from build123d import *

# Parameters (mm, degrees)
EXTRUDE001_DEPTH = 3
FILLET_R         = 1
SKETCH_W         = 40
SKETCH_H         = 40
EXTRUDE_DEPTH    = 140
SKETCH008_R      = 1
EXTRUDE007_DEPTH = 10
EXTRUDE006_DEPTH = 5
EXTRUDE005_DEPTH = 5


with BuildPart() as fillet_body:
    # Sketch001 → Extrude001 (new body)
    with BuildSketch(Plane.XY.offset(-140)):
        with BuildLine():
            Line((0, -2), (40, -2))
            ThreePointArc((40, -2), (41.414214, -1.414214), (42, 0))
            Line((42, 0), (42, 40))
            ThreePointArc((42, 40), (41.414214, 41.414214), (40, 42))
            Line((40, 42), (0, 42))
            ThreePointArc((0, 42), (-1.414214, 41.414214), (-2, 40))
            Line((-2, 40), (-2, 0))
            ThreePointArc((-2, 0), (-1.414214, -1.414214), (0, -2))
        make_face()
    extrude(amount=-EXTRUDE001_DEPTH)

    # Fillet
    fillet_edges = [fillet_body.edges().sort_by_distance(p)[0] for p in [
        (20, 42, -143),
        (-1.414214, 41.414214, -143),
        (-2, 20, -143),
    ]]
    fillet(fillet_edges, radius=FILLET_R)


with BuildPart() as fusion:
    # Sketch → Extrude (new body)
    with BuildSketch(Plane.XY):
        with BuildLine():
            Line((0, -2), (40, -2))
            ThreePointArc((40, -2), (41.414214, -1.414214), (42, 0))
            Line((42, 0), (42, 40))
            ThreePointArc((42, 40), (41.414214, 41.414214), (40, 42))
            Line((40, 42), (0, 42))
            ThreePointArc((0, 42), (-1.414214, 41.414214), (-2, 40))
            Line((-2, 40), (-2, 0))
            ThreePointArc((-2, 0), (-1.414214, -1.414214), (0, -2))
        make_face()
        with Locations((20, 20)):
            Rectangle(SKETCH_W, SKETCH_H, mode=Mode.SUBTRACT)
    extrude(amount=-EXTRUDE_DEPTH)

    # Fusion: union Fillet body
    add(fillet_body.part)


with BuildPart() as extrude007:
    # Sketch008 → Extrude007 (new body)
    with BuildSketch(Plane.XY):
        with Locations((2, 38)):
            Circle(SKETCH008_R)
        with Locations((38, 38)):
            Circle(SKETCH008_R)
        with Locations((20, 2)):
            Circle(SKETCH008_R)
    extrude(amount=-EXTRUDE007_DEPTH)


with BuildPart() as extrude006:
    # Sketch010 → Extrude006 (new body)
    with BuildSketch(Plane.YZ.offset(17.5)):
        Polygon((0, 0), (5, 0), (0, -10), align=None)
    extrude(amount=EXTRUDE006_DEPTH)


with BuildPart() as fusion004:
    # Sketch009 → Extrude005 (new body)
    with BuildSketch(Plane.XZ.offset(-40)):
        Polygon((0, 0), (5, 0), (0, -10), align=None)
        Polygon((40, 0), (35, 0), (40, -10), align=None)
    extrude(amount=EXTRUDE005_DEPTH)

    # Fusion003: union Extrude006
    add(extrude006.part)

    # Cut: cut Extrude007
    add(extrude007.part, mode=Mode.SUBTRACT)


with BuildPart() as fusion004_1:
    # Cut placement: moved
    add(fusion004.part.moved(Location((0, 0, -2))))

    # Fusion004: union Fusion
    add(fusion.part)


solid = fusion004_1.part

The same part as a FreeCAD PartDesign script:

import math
import FreeCAD as App
import Part
import Sketcher
from FreeCAD import Vector


def edges_at(feature, points):
    """Names of the edges that pass closest to the given points."""
    edges = feature.Shape.Edges
    near = lambda p: min(range(len(edges)), key=lambda i: edges[i].distToShape(Part.Vertex(*p))[0])
    return sorted({f"Edge{near(p) + 1}" for p in points})


def add_polygon(sketch, points):
    """Adds a closed chain of lines whose ends are joined by coincident constraints."""
    first, n = sketch.GeometryCount, len(points)
    for a, b in zip(points, points[1:] + points[:1]):
        sketch.addGeometry(Part.LineSegment(App.Vector(*a, 0), App.Vector(*b, 0)), False)
    for i in range(n):
        sketch.addConstraint(Sketcher.Constraint("Coincident", first + i, 2, first + (i + 1) % n, 1))

doc = App.newDocument("Part")
body = doc.addObject("PartDesign::Body", "Body")

sketch1 = doc.addObject("Sketcher::SketchObject", "Sketch")
body.addObject(sketch1)
sketch1.AttachmentSupport = (doc.XY_Plane, [""])
sketch1.MapMode = "FlatFace"
sketch1.AttachmentOffset = App.Placement(Vector(0, 0, -140), App.Rotation())
sketch1.addGeometry([
    Part.LineSegment(Vector(0, -2, 0), Vector(40, -2, 0)),
    Part.ArcOfCircle(Part.Circle(Vector(40, 0, 0), Vector(0, 0, 1), 2), math.radians(-90), math.radians(0)),
    Part.LineSegment(Vector(42, 0, 0), Vector(42, 40, 0)),
    Part.ArcOfCircle(Part.Circle(Vector(40, 40, 0), Vector(0, 0, 1), 2), math.radians(0), math.radians(90)),
    Part.LineSegment(Vector(40, 42, 0), Vector(0, 42, 0)),
    Part.ArcOfCircle(Part.Circle(Vector(0, 40, 0), Vector(0, 0, 1), 2), math.radians(90), math.radians(180)),
    Part.LineSegment(Vector(-2, 40, 0), Vector(-2, 0, 0)),
    Part.ArcOfCircle(Part.Circle(Vector(0, 0, 0), Vector(0, 0, 1), 2), math.radians(180), math.radians(270)),
], False)
sketch1.addConstraint([
    Sketcher.Constraint("Tangent", 0, 2, 1, 1),
    Sketcher.Constraint("Tangent", 1, 2, 2, 1),
    Sketcher.Constraint("Tangent", 2, 2, 3, 1),
    Sketcher.Constraint("Tangent", 3, 2, 4, 1),
    Sketcher.Constraint("Tangent", 4, 2, 5, 1),
    Sketcher.Constraint("Tangent", 5, 2, 6, 1),
    Sketcher.Constraint("Tangent", 6, 2, 7, 1),
    Sketcher.Constraint("Tangent", 7, 2, 0, 1),
    Sketcher.Constraint("Horizontal", 0),
    Sketcher.Constraint("Vertical", 2),
    Sketcher.Constraint("Horizontal", 4),
    Sketcher.Constraint("Vertical", 6),
    Sketcher.Constraint("Coincident", 7, 3, -1, 1),
    Sketcher.Constraint("Equal", 1, 3),
    Sketcher.Constraint("Equal", 3, 5),
    Sketcher.Constraint("Equal", 5, 7),
    Sketcher.Constraint("Equal", 4, 2),
    Sketcher.Constraint("Radius", 1, 1.999999),
    Sketcher.Constraint("DistanceX", 0, 1, 0, 2, 40.0),
])
pad1 = doc.addObject("PartDesign::Pad", "Pad")
body.addObject(pad1)
pad1.Profile = sketch1
pad1.Length = 3
pad1.Reversed = True
doc.recompute()

fillet = doc.addObject("PartDesign::Fillet", "Fillet")
body.addObject(fillet)
fillet.Base = (pad1, edges_at(pad1, [(20, 42, -143), (-1.414, 41.414, -143), (-2, 20, -143)]))
fillet.Radius = 1
body2 = doc.addObject("PartDesign::Body", "Body001")

sketch2 = doc.addObject("Sketcher::SketchObject", "Sketch001")
body2.addObject(sketch2)
sketch2.AttachmentSupport = (doc.getObject("XY_Plane001"), [""])
sketch2.MapMode = "FlatFace"
sketch2.addGeometry(Part.LineSegment(Vector(0, -2, 0), Vector(40, -2, 0)), False)
sketch2.addGeometry(Part.ArcOfCircle(Part.Circle(Vector(40, 0, 0), Vector(0, 0, 1), 2), math.radians(-90), math.radians(0)), False)
sketch2.addGeometry(Part.LineSegment(Vector(42, 0, 0), Vector(42, 40, 0)), False)
sketch2.addGeometry(Part.ArcOfCircle(Part.Circle(Vector(40, 40, 0), Vector(0, 0, 1), 2), math.radians(0), math.radians(90)), False)
sketch2.addGeometry(Part.LineSegment(Vector(40, 42, 0), Vector(0, 42, 0)), False)
sketch2.addGeometry(Part.ArcOfCircle(Part.Circle(Vector(0, 40, 0), Vector(0, 0, 1), 2), math.radians(90), math.radians(180)), False)
sketch2.addGeometry(Part.LineSegment(Vector(-2, 40, 0), Vector(-2, 0, 0)), False)
sketch2.addGeometry(Part.ArcOfCircle(Part.Circle(Vector(0, 0, 0), Vector(0, 0, 1), 2), math.radians(180), math.radians(270)), False)
add_polygon(sketch2, [(40, 0), (0, 0), (0, 40), (40, 40)])
sketch2.addConstraint([
    Sketcher.Constraint("Tangent", 0, 2, 1, 1),
    Sketcher.Constraint("Tangent", 1, 2, 2, 1),
    Sketcher.Constraint("Tangent", 2, 2, 3, 1),
    Sketcher.Constraint("Tangent", 3, 2, 4, 1),
    Sketcher.Constraint("Tangent", 4, 2, 5, 1),
    Sketcher.Constraint("Tangent", 5, 2, 6, 1),
    Sketcher.Constraint("Tangent", 6, 2, 7, 1),
    Sketcher.Constraint("Tangent", 7, 2, 0, 1),
    Sketcher.Constraint("Horizontal", 0),
    Sketcher.Constraint("Vertical", 2),
    Sketcher.Constraint("Horizontal", 4),
    Sketcher.Constraint("Vertical", 6),
    Sketcher.Constraint("Horizontal", 8),
    Sketcher.Constraint("Vertical", 9),
    Sketcher.Constraint("Horizontal", 10),
    Sketcher.Constraint("Vertical", 11),
    Sketcher.Constraint("Coincident", 7, 3, -1, 1),
    Sketcher.Constraint("Coincident", 8, 2, -1, 1),
    Sketcher.Constraint("Coincident", 9, 2, 5, 3),
    Sketcher.Constraint("Coincident", 10, 2, 3, 3),
    Sketcher.Constraint("Equal", 1, 3),
    Sketcher.Constraint("Equal", 10, 2),
    Sketcher.Constraint("Radius", 1, 1.999999),
    Sketcher.Constraint("DistanceX", 0, 1, 0, 2, 40.0),
])
pad2 = doc.addObject("PartDesign::Pad", "Pad001")
body2.addObject(pad2)
pad2.Profile = sketch2
pad2.Length = 140
pad2.Reversed = True
doc.recompute()

boolean = doc.addObject("PartDesign::Boolean", "Boolean")
body2.addObject(boolean)
boolean.Type = "Fuse"
boolean.addObjects([body])
body3 = doc.addObject("PartDesign::Body", "Body002")
body3.AllowCompound = True

sketch3 = doc.addObject("Sketcher::SketchObject", "Sketch002")
body3.addObject(sketch3)
sketch3.AttachmentSupport = (doc.getObject("XY_Plane002"), [""])
sketch3.MapMode = "FlatFace"
sketch3.addGeometry([
    Part.Circle(Vector(2, 38, 0), Vector(0, 0, 1), 1),
    Part.Circle(Vector(38, 38, 0), Vector(0, 0, 1), 1),
    Part.Circle(Vector(20, 2, 0), Vector(0, 0, 1), 1),
], False)
sketch3.addConstraint([
    Sketcher.Constraint("Equal", 0, 1),
    Sketcher.Constraint("Equal", 1, 2),
    Sketcher.Constraint("Horizontal", 0, 3, 1, 3),
    Sketcher.Constraint("Diameter", 0, 2.0),
    Sketcher.Constraint("DistanceX", -1, 1, 0, 3, 2.0),
    Sketcher.Constraint("DistanceY", -1, 1, 0, 3, 38.0),
    Sketcher.Constraint("DistanceX", -1, 1, 1, 3, 38.0),
    Sketcher.Constraint("DistanceX", -1, 1, 2, 3, 20.0),
    Sketcher.Constraint("DistanceY", -1, 1, 2, 3, 2.0),
])
pad3 = doc.addObject("PartDesign::Pad", "Pad002")
body3.addObject(pad3)
pad3.Profile = sketch3
pad3.Length = 10
pad3.Reversed = True
body4 = doc.addObject("PartDesign::Body", "Body003")

sketch4 = doc.addObject("Sketcher::SketchObject", "Sketch003")
body4.addObject(sketch4)
sketch4.AttachmentSupport = (doc.getObject("YZ_Plane003"), [""])
sketch4.MapMode = "FlatFace"
sketch4.AttachmentOffset = App.Placement(Vector(0, 0, 17.5), App.Rotation())
add_polygon(sketch4, [(5, 0), (0, 0), (0, -10)])
sketch4.addConstraint([
    Sketcher.Constraint("Horizontal", 0),
    Sketcher.Constraint("Vertical", 1),
    Sketcher.Constraint("Coincident", 0, 2, -1, 1),
    Sketcher.Constraint("DistanceX", 0, 2, 0, 1, 5.0),
    Sketcher.Constraint("DistanceY", 1, 2, 1, 1, 10.0),
])
pad4 = doc.addObject("PartDesign::Pad", "Pad003")
body4.addObject(pad4)
pad4.Profile = sketch4
pad4.Length = 5
body5 = doc.addObject("PartDesign::Body", "Body004")
body5.AllowCompound = True

sketch5 = doc.addObject("Sketcher::SketchObject", "Sketch004")
body5.addObject(sketch5)
sketch5.AttachmentSupport = (doc.getObject("XZ_Plane004"), [""])
sketch5.MapMode = "FlatFace"
sketch5.AttachmentOffset = App.Placement(Vector(0, 0, -40), App.Rotation())
add_polygon(sketch5, [(5, 0), (0, 0), (0, -10)])
add_polygon(sketch5, [(40, 0), (35, 0), (40, -10)])
sketch5.addConstraint([
    Sketcher.Constraint("Horizontal", 0),
    Sketcher.Constraint("Vertical", 1),
    Sketcher.Constraint("Horizontal", 3),
    Sketcher.Constraint("Vertical", 5),
    Sketcher.Constraint("Coincident", 0, 2, -1, 1),
    Sketcher.Constraint("PointOnObject", 3, 2, -1),
    Sketcher.Constraint("Horizontal", 1, 2, 4, 2),
    Sketcher.Constraint("Equal", 0, 3),
    Sketcher.Constraint("DistanceX", 0, 2, 0, 1, 5.0),
    Sketcher.Constraint("DistanceY", 1, 2, 1, 1, 10.0),
    Sketcher.Constraint("DistanceX", -1, 1, 3, 2, 35.0),
])
pad5 = doc.addObject("PartDesign::Pad", "Pad004")
body5.addObject(pad5)
pad5.Profile = sketch5
pad5.Length = 5
doc.recompute()

boolean2 = doc.addObject("PartDesign::Boolean", "Boolean001")
body5.addObject(boolean2)
boolean2.Type = "Fuse"
boolean2.addObjects([body4])
doc.recompute()

boolean3 = doc.addObject("PartDesign::Boolean", "Boolean002")
body5.addObject(boolean3)
boolean3.Type = "Cut"
boolean3.addObjects([body3])
body6 = doc.addObject("PartDesign::Body", "Body005")
body6.AllowCompound = True
doc.recompute()

body5.Placement = App.Placement(Vector(0, 0, -2), App.Rotation(Vector(0, 0, 1), 0))
boolean4 = doc.addObject("PartDesign::Boolean", "Boolean003")
body6.addObject(boolean4)
boolean4.Type = "Fuse"
boolean4.addObjects([body5])
doc.recompute()

boolean5 = doc.addObject("PartDesign::Boolean", "Boolean004")
body6.addObject(boolean5)
boolean5.Type = "Fuse"
boolean5.addObjects([body2])

doc.recompute()
